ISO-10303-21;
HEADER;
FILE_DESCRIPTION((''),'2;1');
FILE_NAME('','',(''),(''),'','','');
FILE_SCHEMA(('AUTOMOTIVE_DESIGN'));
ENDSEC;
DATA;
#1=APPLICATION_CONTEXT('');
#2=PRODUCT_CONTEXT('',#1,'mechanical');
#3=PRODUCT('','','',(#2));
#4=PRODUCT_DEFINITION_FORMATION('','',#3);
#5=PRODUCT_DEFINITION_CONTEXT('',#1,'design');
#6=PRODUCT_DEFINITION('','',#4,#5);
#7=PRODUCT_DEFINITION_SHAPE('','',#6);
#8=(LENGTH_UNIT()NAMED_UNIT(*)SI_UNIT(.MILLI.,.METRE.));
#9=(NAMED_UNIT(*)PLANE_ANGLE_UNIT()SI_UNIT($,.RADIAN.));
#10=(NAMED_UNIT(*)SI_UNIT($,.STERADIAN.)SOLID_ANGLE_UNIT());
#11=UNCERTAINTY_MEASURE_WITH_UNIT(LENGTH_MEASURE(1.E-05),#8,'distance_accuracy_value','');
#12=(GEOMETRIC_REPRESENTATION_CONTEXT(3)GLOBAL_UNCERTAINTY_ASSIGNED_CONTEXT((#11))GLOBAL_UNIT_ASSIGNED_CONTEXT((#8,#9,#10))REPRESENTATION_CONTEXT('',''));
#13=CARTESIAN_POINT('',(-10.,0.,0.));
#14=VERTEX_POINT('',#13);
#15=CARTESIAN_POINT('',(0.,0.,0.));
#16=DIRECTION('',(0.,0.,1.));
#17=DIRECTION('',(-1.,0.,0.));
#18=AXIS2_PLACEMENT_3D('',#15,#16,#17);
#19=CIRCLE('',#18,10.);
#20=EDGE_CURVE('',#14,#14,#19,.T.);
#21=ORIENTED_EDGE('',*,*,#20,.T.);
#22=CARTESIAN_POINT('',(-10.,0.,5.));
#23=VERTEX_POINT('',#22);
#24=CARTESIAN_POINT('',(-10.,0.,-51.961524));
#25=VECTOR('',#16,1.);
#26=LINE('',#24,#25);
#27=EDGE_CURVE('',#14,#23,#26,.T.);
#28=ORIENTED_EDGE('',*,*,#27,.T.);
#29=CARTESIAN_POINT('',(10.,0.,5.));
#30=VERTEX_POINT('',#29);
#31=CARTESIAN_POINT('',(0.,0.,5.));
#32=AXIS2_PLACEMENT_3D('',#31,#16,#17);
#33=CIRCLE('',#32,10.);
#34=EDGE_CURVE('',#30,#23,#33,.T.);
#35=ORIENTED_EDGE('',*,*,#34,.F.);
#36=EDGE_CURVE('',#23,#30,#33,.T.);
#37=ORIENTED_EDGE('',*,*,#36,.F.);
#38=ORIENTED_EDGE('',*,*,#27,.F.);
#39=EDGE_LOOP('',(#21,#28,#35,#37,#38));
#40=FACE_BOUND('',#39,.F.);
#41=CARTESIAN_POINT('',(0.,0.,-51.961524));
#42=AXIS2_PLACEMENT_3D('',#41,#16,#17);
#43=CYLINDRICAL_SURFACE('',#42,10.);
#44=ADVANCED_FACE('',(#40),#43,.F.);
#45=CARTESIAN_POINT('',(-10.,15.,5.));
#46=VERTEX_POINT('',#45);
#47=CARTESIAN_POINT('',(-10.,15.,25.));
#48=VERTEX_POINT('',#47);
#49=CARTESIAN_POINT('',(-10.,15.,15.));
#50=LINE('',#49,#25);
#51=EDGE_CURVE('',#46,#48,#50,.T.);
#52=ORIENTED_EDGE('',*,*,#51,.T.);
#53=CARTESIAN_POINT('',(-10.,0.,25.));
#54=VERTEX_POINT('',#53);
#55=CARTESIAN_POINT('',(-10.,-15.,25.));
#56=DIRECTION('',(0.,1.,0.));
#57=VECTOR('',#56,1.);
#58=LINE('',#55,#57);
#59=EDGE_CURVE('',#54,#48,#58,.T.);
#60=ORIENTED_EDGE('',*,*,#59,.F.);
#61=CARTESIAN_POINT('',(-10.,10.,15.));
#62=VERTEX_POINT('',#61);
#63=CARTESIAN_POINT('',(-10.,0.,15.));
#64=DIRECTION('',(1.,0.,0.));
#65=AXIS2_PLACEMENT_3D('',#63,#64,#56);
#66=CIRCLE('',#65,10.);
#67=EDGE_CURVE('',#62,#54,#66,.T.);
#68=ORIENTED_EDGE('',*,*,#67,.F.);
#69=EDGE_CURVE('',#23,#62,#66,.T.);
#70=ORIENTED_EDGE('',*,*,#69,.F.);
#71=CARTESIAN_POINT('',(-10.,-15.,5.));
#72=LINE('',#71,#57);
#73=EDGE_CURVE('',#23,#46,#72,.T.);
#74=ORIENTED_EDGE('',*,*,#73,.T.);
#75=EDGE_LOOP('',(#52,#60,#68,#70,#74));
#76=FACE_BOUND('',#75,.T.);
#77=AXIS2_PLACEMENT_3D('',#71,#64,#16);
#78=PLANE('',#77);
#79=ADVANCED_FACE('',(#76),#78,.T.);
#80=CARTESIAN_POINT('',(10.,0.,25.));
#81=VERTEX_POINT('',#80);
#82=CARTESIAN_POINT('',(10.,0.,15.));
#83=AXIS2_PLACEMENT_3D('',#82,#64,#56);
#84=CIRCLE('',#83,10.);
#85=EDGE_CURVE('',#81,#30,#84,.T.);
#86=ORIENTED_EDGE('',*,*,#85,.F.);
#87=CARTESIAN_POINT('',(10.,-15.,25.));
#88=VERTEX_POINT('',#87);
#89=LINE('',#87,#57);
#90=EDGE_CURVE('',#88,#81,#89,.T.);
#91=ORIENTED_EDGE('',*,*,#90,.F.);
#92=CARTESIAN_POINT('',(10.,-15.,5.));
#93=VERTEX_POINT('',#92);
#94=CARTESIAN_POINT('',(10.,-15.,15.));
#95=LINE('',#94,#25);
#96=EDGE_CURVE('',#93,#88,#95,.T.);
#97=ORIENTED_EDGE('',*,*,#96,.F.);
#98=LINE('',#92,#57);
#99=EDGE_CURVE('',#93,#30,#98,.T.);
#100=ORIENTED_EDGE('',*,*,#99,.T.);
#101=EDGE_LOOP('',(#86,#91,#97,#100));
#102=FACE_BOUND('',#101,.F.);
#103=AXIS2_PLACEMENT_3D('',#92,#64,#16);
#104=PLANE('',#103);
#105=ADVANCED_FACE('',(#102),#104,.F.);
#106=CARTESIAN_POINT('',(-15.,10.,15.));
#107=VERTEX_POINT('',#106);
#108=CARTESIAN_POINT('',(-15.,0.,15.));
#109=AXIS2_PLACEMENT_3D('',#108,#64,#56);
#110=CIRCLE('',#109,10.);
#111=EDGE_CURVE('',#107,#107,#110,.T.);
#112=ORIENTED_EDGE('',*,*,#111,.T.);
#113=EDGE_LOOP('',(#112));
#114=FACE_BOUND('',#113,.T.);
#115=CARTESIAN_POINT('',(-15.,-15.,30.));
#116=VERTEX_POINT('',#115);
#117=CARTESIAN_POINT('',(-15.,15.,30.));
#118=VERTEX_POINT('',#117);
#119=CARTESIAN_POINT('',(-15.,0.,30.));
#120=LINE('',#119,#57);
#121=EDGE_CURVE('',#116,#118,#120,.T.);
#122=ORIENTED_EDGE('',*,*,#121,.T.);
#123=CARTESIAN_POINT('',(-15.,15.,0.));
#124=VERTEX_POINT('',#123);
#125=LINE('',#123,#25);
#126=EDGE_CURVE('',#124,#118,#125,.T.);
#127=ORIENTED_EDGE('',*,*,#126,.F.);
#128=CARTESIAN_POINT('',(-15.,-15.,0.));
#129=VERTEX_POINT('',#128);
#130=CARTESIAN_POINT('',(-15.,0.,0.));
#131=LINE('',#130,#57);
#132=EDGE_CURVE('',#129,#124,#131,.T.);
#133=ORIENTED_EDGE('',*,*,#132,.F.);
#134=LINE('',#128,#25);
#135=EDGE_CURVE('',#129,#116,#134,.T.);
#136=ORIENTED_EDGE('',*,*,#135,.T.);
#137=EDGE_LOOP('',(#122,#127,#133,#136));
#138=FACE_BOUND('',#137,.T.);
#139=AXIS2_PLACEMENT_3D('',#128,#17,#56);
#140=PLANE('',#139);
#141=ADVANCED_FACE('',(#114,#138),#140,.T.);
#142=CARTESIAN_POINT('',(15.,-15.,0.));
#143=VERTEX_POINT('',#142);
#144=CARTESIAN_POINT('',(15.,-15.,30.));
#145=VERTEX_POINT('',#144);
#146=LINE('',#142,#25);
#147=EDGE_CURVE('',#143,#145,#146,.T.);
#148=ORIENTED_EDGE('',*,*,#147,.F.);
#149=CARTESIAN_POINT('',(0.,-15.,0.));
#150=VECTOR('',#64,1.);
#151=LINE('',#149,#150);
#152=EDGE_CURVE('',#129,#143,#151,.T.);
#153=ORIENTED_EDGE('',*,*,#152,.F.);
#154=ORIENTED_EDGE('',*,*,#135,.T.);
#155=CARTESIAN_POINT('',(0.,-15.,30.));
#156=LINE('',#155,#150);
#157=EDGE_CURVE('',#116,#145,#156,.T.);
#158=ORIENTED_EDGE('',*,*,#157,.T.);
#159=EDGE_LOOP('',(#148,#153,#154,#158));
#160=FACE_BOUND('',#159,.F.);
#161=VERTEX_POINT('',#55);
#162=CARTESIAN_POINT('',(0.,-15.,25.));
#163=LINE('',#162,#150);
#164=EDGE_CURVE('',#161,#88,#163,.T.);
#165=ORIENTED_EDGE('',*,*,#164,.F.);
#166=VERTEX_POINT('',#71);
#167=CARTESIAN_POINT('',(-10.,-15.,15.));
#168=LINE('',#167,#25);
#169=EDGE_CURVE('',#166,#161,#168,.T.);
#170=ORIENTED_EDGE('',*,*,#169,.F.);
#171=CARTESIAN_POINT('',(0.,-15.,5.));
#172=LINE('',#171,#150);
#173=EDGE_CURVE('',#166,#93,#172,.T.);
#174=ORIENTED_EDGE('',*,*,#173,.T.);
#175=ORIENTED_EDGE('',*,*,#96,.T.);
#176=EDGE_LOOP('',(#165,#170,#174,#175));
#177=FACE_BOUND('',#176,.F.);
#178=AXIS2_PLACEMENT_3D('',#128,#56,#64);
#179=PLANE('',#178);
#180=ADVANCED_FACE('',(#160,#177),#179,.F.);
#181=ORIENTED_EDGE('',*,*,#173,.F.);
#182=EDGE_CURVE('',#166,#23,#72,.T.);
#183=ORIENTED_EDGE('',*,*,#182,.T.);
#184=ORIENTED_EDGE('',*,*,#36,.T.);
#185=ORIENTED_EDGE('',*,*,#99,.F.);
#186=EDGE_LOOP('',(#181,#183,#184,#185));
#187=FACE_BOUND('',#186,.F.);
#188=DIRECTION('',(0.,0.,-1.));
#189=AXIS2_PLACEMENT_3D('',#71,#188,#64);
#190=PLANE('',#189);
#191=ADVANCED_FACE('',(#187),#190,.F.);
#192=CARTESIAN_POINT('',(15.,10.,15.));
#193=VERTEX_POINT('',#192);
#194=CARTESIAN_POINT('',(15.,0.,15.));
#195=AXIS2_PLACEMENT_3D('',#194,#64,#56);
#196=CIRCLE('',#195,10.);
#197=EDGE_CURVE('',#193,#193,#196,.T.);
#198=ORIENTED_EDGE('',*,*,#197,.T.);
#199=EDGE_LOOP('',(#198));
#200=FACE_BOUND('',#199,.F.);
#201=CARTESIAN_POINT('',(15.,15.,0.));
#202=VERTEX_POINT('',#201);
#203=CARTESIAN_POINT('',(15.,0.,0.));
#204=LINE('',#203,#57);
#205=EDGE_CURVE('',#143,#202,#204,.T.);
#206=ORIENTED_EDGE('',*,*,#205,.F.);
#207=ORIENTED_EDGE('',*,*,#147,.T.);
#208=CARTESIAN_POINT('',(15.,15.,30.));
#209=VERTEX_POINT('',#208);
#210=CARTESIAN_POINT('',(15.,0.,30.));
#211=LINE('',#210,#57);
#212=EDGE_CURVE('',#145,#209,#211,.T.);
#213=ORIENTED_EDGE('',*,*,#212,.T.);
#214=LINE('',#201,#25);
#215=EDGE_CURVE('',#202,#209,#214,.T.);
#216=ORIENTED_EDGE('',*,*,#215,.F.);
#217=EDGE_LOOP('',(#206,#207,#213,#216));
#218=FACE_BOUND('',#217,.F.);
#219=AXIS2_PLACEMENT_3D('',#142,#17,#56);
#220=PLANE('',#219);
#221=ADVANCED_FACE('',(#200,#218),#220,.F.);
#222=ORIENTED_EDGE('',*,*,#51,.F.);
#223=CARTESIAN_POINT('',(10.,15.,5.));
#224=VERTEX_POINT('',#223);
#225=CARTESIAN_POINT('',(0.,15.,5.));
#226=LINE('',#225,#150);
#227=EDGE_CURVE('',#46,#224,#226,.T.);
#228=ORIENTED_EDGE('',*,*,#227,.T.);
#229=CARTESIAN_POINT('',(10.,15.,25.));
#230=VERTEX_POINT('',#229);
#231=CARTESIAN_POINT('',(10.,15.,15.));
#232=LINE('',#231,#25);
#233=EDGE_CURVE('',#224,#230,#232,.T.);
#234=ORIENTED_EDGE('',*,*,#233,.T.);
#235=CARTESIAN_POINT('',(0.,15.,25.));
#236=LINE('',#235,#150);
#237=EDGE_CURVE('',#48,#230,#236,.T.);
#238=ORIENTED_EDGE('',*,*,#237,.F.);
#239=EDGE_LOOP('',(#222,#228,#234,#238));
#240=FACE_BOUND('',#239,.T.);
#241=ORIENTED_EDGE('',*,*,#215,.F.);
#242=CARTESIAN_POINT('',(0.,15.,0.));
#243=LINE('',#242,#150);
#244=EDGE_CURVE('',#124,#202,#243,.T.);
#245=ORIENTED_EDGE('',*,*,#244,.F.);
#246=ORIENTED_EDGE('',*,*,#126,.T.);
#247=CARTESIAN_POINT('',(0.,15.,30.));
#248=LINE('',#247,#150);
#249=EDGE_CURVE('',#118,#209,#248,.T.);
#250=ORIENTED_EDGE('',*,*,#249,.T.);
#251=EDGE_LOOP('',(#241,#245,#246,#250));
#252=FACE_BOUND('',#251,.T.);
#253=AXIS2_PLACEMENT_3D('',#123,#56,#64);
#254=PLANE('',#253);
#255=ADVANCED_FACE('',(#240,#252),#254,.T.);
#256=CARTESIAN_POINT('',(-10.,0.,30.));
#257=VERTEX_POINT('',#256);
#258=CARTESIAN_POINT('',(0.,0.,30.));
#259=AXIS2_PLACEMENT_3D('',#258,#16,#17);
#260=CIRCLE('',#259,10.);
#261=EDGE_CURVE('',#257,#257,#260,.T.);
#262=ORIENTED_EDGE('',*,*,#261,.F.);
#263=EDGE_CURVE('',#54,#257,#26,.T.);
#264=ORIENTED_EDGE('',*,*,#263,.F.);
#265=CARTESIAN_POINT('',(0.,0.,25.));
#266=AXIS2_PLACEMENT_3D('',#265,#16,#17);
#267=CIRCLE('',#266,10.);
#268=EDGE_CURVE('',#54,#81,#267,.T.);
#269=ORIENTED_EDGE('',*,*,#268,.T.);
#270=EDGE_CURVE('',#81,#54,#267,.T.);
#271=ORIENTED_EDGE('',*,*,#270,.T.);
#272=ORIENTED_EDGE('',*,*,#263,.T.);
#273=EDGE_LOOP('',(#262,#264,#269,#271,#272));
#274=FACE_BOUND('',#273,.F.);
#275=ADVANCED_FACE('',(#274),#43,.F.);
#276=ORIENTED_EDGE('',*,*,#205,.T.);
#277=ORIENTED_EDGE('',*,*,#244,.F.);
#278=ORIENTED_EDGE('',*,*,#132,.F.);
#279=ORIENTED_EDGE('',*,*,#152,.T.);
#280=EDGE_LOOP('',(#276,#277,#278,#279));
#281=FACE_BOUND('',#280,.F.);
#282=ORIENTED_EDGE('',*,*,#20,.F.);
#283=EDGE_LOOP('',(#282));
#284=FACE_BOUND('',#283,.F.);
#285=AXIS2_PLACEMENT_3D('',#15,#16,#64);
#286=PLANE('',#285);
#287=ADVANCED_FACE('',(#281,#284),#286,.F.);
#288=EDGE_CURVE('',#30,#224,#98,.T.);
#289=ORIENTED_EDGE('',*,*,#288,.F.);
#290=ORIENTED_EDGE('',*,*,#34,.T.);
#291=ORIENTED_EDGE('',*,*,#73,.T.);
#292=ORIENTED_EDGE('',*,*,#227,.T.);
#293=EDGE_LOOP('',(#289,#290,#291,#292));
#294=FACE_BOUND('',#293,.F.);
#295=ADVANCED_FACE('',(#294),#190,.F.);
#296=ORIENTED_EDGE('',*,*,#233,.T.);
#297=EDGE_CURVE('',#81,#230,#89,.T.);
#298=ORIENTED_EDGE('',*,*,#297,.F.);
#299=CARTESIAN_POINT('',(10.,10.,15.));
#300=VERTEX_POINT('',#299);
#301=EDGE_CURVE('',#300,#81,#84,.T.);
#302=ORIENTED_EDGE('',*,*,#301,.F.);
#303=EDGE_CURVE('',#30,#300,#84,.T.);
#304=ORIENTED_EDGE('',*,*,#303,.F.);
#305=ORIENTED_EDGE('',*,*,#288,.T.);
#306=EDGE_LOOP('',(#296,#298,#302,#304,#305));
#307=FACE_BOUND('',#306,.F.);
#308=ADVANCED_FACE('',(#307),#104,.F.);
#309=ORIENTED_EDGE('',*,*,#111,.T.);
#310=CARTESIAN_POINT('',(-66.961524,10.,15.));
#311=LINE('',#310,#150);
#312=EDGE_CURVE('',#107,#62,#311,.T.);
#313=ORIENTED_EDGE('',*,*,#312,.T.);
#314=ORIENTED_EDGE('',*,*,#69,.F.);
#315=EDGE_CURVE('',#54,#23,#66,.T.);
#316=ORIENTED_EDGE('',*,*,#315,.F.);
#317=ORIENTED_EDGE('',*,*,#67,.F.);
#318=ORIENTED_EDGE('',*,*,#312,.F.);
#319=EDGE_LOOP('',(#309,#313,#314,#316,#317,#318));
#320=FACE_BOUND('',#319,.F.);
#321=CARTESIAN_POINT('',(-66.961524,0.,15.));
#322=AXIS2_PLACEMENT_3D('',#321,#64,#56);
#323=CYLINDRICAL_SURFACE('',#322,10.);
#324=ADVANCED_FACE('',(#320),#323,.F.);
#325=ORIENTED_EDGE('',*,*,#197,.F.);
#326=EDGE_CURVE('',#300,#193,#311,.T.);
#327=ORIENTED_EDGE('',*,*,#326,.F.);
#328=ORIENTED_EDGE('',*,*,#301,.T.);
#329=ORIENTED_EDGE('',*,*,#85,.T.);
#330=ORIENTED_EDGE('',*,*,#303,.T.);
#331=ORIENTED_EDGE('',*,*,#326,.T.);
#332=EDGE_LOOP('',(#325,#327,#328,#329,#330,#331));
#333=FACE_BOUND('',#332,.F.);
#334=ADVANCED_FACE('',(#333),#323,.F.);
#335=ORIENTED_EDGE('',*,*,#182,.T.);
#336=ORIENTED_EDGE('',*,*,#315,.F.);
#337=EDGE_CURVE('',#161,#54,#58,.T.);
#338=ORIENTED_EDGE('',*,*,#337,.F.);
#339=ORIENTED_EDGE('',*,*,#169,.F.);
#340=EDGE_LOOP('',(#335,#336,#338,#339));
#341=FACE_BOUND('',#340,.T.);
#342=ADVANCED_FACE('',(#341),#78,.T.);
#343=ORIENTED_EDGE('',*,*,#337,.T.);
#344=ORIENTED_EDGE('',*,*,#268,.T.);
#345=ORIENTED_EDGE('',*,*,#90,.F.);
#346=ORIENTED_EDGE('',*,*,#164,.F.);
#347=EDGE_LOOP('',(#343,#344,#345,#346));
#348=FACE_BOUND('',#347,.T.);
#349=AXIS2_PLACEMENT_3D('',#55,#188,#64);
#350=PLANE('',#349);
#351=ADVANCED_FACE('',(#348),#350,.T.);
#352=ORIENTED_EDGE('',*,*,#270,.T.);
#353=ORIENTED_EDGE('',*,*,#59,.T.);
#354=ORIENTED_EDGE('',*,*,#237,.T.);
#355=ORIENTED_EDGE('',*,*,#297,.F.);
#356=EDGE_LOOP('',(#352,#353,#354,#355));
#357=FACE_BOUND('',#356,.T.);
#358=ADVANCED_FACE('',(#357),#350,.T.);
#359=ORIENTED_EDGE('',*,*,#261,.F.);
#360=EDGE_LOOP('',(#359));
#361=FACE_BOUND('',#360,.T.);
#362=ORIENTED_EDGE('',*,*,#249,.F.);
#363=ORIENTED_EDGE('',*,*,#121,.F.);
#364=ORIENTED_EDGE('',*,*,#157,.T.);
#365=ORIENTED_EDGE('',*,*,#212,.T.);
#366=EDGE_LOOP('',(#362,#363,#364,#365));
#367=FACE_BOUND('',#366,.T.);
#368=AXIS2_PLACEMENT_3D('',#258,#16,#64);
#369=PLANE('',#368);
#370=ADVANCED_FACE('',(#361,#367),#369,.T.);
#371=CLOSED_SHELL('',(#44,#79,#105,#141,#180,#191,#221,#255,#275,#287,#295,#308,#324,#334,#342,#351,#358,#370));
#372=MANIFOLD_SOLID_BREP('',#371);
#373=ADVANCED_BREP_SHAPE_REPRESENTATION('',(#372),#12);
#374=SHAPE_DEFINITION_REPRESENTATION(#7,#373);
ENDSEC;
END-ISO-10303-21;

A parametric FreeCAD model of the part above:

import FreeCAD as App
import Part
import Sketcher
from FreeCAD import Vector
Q = App.Units.Quantity

doc = App.newDocument("Part")
body = doc.addObject("PartDesign::Body", "Body")

sketch1 = body.newObject("Sketcher::SketchObject", "Sketch")
sketch1.AttachmentSupport = (doc.getObject("XY_Plane"), [""])
sketch1.MapMode = "FlatFace"
sketch1.addGeometry(Part.LineSegment(Vector(-15, 15, 0), Vector(-15, -15, 0)), False)
sketch1.addGeometry(Part.LineSegment(Vector(-15, -15, 0), Vector(15, -15, 0)), False)
sketch1.addGeometry(Part.LineSegment(Vector(15, -15, 0), Vector(15, 15, 0)), False)
sketch1.addGeometry(Part.LineSegment(Vector(15, 15, 0), Vector(-15, 15, 0)), False)
sketch1.addConstraint(Sketcher.Constraint("Coincident", 0, 2, 1, 1))
sketch1.addConstraint(Sketcher.Constraint("Coincident", 1, 2, 2, 1))
sketch1.addConstraint(Sketcher.Constraint("Coincident", 2, 2, 3, 1))
sketch1.addConstraint(Sketcher.Constraint("Coincident", 3, 2, 0, 1))
sketch1.addConstraint(Sketcher.Constraint("Vertical", 0))
sketch1.addConstraint(Sketcher.Constraint("Horizontal", 1))
sketch1.addConstraint(Sketcher.Constraint("Vertical", 2))
sketch1.addConstraint(Sketcher.Constraint("Horizontal", 3))
sketch1.addConstraint(Sketcher.Constraint("Symmetric", 0, 2, 2, 2, -1, 1))
sketch1.addConstraint(Sketcher.Constraint("Equal", 3, 0))
sketch1.addConstraint(Sketcher.Constraint("DistanceX", 1, 1, 1, 2, Q("30 mm")))
pad1 = body.newObject("PartDesign::Pad", "Pad")
pad1.Profile = sketch1
pad1.Length = 30

sketch2 = body.newObject("Sketcher::SketchObject", "Sketch001")
sketch2.AttachmentSupport = (doc.getObject("XY_Plane"), [""])
sketch2.MapMode = "FlatFace"
sketch2.addGeometry(Part.Circle(Vector(0, 0, 0), Vector(0, 0, 1), 10), False)
sketch2.addConstraint(Sketcher.Constraint("Coincident", 0, 3, -1, 1))
sketch2.addConstraint(Sketcher.Constraint("Diameter", 0, Q("20 mm")))
doc.recompute()
hole = body.newObject("PartDesign::Hole", "Hole")
hole.Profile = sketch2
hole.ThreadType = "None"
hole.Diameter = 20
hole.DepthType = "ThroughAll"
hole.Reversed = True

sketch3 = body.newObject("Sketcher::SketchObject", "Sketch002")
sketch3.AttachmentSupport = (doc.getObject("YZ_Plane"), [""])
sketch3.MapMode = "FlatFace"
sketch3.AttachmentOffset = App.Placement(Vector(0, 0, -15), App.Rotation())
sketch3.addGeometry(Part.Circle(Vector(0, 15, 0), Vector(0, 0, 1), 10), False)
sketch3.addConstraint(Sketcher.Constraint("PointOnObject", 0, 3, -2))
sketch3.addConstraint(Sketcher.Constraint("Diameter", 0, Q("20 mm")))
sketch3.addConstraint(Sketcher.Constraint("DistanceY", -1, 1, 0, 3, Q("15 mm")))
doc.recompute()
hole2 = body.newObject("PartDesign::Hole", "Hole001")
hole2.Profile = sketch3
hole2.ThreadType = "None"
hole2.Diameter = 20
hole2.DepthType = "ThroughAll"
hole2.Reversed = True

sketch4 = body.newObject("Sketcher::SketchObject", "Sketch003")
sketch4.AttachmentSupport = (doc.getObject("XZ_Plane"), [""])
sketch4.MapMode = "FlatFace"
sketch4.AttachmentOffset = App.Placement(Vector(0, 0, 15), App.Rotation())
sketch4.addGeometry(Part.LineSegment(Vector(-10, 25, 0), Vector(-10, 5, 0)), False)
sketch4.addGeometry(Part.LineSegment(Vector(-10, 5, 0), Vector(10, 5, 0)), False)
sketch4.addGeometry(Part.LineSegment(Vector(10, 5, 0), Vector(10, 25, 0)), False)
sketch4.addGeometry(Part.LineSegment(Vector(10, 25, 0), Vector(-10, 25, 0)), False)
sketch4.addConstraint(Sketcher.Constraint("Coincident", 0, 2, 1, 1))
sketch4.addConstraint(Sketcher.Constraint("Coincident", 1, 2, 2, 1))
sketch4.addConstraint(Sketcher.Constraint("Coincident", 2, 2, 3, 1))
sketch4.addConstraint(Sketcher.Constraint("Coincident", 3, 2, 0, 1))
sketch4.addConstraint(Sketcher.Constraint("Vertical", 0))
sketch4.addConstraint(Sketcher.Constraint("Horizontal", 1))
sketch4.addConstraint(Sketcher.Constraint("Vertical", 2))
sketch4.addConstraint(Sketcher.Constraint("Horizontal", 3))
sketch4.addConstraint(Sketcher.Constraint("Equal", 3, 0))
sketch4.addConstraint(Sketcher.Constraint("DistanceX", 1, 1, 1, 2, Q("20 mm")))
sketch4.addConstraint(Sketcher.Constraint("DistanceX", 0, 2, -1, 1, Q("10 mm")))
sketch4.addConstraint(Sketcher.Constraint("DistanceY", -1, 1, 0, 2, Q("5 mm")))
pocket1 = body.newObject("PartDesign::Pocket", "Pocket")
pocket1.Profile = sketch4
pocket1.Length = 30

doc.recompute()
